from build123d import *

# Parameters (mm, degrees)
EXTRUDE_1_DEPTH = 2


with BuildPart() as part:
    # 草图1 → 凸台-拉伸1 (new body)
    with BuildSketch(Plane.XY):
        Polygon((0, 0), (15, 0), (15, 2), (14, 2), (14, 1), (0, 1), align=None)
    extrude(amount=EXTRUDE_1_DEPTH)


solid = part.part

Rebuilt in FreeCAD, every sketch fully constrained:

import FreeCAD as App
import Part
import Sketcher
from FreeCAD import Vector
Q = App.Units.Quantity


def add_polygon(sketch, points):
    """Adds a closed chain of lines whose ends are joined by coincident constraints."""
    first, n = sketch.GeometryCount, len(points)
    for a, b in zip(points, points[1:] + points[:1]):
        sketch.addGeometry(Part.LineSegment(App.Vector(*a, 0), App.Vector(*b, 0)), False)
    for i in range(n):
        sketch.addConstraint(Sketcher.Constraint("Coincident", first + i, 2, first + (i + 1) % n, 1))

doc = App.newDocument("Part")
body = doc.addObject("PartDesign::Body", "Body")

# Sketch on XY plane
sketch1 = body.newObject("Sketcher::SketchObject", "Sketch")
sketch1.AttachmentSupport = (doc.getObject("XY_Plane"), [""])
sketch1.MapMode = "FlatFace"
add_polygon(sketch1, [(0, 0), (15, 0), (15, 2), (14, 2), (14, 1), (0, 1)])  # lines 0-5
sketch1.addConstraint(Sketcher.Constraint("Horizontal", 0))
sketch1.addConstraint(Sketcher.Constraint("Vertical", 1))
sketch1.addConstraint(Sketcher.Constraint("Horizontal", 2))
sketch1.addConstraint(Sketcher.Constraint("Vertical", 3))
sketch1.addConstraint(Sketcher.Constraint("Horizontal", 4))
sketch1.addConstraint(Sketcher.Constraint("Vertical", 5))
sketch1.addConstraint(Sketcher.Constraint("Coincident", 5, 2, -1, 1))
sketch1.addConstraint(Sketcher.Constraint("Equal", 2, 3))
sketch1.addConstraint(Sketcher.Constraint("Equal", 3, 5))
sketch1.addConstraint(Sketcher.Constraint("DistanceX", 0, 1, 0, 2, Q("15 mm")))
sketch1.addConstraint(Sketcher.Constraint("DistanceX", 2, 2, 2, 1, Q("1 mm")))
pad1 = body.newObject("PartDesign::Pad", "Pad")
pad1.Profile = sketch1
pad1.Length = 2

doc.recompute()
